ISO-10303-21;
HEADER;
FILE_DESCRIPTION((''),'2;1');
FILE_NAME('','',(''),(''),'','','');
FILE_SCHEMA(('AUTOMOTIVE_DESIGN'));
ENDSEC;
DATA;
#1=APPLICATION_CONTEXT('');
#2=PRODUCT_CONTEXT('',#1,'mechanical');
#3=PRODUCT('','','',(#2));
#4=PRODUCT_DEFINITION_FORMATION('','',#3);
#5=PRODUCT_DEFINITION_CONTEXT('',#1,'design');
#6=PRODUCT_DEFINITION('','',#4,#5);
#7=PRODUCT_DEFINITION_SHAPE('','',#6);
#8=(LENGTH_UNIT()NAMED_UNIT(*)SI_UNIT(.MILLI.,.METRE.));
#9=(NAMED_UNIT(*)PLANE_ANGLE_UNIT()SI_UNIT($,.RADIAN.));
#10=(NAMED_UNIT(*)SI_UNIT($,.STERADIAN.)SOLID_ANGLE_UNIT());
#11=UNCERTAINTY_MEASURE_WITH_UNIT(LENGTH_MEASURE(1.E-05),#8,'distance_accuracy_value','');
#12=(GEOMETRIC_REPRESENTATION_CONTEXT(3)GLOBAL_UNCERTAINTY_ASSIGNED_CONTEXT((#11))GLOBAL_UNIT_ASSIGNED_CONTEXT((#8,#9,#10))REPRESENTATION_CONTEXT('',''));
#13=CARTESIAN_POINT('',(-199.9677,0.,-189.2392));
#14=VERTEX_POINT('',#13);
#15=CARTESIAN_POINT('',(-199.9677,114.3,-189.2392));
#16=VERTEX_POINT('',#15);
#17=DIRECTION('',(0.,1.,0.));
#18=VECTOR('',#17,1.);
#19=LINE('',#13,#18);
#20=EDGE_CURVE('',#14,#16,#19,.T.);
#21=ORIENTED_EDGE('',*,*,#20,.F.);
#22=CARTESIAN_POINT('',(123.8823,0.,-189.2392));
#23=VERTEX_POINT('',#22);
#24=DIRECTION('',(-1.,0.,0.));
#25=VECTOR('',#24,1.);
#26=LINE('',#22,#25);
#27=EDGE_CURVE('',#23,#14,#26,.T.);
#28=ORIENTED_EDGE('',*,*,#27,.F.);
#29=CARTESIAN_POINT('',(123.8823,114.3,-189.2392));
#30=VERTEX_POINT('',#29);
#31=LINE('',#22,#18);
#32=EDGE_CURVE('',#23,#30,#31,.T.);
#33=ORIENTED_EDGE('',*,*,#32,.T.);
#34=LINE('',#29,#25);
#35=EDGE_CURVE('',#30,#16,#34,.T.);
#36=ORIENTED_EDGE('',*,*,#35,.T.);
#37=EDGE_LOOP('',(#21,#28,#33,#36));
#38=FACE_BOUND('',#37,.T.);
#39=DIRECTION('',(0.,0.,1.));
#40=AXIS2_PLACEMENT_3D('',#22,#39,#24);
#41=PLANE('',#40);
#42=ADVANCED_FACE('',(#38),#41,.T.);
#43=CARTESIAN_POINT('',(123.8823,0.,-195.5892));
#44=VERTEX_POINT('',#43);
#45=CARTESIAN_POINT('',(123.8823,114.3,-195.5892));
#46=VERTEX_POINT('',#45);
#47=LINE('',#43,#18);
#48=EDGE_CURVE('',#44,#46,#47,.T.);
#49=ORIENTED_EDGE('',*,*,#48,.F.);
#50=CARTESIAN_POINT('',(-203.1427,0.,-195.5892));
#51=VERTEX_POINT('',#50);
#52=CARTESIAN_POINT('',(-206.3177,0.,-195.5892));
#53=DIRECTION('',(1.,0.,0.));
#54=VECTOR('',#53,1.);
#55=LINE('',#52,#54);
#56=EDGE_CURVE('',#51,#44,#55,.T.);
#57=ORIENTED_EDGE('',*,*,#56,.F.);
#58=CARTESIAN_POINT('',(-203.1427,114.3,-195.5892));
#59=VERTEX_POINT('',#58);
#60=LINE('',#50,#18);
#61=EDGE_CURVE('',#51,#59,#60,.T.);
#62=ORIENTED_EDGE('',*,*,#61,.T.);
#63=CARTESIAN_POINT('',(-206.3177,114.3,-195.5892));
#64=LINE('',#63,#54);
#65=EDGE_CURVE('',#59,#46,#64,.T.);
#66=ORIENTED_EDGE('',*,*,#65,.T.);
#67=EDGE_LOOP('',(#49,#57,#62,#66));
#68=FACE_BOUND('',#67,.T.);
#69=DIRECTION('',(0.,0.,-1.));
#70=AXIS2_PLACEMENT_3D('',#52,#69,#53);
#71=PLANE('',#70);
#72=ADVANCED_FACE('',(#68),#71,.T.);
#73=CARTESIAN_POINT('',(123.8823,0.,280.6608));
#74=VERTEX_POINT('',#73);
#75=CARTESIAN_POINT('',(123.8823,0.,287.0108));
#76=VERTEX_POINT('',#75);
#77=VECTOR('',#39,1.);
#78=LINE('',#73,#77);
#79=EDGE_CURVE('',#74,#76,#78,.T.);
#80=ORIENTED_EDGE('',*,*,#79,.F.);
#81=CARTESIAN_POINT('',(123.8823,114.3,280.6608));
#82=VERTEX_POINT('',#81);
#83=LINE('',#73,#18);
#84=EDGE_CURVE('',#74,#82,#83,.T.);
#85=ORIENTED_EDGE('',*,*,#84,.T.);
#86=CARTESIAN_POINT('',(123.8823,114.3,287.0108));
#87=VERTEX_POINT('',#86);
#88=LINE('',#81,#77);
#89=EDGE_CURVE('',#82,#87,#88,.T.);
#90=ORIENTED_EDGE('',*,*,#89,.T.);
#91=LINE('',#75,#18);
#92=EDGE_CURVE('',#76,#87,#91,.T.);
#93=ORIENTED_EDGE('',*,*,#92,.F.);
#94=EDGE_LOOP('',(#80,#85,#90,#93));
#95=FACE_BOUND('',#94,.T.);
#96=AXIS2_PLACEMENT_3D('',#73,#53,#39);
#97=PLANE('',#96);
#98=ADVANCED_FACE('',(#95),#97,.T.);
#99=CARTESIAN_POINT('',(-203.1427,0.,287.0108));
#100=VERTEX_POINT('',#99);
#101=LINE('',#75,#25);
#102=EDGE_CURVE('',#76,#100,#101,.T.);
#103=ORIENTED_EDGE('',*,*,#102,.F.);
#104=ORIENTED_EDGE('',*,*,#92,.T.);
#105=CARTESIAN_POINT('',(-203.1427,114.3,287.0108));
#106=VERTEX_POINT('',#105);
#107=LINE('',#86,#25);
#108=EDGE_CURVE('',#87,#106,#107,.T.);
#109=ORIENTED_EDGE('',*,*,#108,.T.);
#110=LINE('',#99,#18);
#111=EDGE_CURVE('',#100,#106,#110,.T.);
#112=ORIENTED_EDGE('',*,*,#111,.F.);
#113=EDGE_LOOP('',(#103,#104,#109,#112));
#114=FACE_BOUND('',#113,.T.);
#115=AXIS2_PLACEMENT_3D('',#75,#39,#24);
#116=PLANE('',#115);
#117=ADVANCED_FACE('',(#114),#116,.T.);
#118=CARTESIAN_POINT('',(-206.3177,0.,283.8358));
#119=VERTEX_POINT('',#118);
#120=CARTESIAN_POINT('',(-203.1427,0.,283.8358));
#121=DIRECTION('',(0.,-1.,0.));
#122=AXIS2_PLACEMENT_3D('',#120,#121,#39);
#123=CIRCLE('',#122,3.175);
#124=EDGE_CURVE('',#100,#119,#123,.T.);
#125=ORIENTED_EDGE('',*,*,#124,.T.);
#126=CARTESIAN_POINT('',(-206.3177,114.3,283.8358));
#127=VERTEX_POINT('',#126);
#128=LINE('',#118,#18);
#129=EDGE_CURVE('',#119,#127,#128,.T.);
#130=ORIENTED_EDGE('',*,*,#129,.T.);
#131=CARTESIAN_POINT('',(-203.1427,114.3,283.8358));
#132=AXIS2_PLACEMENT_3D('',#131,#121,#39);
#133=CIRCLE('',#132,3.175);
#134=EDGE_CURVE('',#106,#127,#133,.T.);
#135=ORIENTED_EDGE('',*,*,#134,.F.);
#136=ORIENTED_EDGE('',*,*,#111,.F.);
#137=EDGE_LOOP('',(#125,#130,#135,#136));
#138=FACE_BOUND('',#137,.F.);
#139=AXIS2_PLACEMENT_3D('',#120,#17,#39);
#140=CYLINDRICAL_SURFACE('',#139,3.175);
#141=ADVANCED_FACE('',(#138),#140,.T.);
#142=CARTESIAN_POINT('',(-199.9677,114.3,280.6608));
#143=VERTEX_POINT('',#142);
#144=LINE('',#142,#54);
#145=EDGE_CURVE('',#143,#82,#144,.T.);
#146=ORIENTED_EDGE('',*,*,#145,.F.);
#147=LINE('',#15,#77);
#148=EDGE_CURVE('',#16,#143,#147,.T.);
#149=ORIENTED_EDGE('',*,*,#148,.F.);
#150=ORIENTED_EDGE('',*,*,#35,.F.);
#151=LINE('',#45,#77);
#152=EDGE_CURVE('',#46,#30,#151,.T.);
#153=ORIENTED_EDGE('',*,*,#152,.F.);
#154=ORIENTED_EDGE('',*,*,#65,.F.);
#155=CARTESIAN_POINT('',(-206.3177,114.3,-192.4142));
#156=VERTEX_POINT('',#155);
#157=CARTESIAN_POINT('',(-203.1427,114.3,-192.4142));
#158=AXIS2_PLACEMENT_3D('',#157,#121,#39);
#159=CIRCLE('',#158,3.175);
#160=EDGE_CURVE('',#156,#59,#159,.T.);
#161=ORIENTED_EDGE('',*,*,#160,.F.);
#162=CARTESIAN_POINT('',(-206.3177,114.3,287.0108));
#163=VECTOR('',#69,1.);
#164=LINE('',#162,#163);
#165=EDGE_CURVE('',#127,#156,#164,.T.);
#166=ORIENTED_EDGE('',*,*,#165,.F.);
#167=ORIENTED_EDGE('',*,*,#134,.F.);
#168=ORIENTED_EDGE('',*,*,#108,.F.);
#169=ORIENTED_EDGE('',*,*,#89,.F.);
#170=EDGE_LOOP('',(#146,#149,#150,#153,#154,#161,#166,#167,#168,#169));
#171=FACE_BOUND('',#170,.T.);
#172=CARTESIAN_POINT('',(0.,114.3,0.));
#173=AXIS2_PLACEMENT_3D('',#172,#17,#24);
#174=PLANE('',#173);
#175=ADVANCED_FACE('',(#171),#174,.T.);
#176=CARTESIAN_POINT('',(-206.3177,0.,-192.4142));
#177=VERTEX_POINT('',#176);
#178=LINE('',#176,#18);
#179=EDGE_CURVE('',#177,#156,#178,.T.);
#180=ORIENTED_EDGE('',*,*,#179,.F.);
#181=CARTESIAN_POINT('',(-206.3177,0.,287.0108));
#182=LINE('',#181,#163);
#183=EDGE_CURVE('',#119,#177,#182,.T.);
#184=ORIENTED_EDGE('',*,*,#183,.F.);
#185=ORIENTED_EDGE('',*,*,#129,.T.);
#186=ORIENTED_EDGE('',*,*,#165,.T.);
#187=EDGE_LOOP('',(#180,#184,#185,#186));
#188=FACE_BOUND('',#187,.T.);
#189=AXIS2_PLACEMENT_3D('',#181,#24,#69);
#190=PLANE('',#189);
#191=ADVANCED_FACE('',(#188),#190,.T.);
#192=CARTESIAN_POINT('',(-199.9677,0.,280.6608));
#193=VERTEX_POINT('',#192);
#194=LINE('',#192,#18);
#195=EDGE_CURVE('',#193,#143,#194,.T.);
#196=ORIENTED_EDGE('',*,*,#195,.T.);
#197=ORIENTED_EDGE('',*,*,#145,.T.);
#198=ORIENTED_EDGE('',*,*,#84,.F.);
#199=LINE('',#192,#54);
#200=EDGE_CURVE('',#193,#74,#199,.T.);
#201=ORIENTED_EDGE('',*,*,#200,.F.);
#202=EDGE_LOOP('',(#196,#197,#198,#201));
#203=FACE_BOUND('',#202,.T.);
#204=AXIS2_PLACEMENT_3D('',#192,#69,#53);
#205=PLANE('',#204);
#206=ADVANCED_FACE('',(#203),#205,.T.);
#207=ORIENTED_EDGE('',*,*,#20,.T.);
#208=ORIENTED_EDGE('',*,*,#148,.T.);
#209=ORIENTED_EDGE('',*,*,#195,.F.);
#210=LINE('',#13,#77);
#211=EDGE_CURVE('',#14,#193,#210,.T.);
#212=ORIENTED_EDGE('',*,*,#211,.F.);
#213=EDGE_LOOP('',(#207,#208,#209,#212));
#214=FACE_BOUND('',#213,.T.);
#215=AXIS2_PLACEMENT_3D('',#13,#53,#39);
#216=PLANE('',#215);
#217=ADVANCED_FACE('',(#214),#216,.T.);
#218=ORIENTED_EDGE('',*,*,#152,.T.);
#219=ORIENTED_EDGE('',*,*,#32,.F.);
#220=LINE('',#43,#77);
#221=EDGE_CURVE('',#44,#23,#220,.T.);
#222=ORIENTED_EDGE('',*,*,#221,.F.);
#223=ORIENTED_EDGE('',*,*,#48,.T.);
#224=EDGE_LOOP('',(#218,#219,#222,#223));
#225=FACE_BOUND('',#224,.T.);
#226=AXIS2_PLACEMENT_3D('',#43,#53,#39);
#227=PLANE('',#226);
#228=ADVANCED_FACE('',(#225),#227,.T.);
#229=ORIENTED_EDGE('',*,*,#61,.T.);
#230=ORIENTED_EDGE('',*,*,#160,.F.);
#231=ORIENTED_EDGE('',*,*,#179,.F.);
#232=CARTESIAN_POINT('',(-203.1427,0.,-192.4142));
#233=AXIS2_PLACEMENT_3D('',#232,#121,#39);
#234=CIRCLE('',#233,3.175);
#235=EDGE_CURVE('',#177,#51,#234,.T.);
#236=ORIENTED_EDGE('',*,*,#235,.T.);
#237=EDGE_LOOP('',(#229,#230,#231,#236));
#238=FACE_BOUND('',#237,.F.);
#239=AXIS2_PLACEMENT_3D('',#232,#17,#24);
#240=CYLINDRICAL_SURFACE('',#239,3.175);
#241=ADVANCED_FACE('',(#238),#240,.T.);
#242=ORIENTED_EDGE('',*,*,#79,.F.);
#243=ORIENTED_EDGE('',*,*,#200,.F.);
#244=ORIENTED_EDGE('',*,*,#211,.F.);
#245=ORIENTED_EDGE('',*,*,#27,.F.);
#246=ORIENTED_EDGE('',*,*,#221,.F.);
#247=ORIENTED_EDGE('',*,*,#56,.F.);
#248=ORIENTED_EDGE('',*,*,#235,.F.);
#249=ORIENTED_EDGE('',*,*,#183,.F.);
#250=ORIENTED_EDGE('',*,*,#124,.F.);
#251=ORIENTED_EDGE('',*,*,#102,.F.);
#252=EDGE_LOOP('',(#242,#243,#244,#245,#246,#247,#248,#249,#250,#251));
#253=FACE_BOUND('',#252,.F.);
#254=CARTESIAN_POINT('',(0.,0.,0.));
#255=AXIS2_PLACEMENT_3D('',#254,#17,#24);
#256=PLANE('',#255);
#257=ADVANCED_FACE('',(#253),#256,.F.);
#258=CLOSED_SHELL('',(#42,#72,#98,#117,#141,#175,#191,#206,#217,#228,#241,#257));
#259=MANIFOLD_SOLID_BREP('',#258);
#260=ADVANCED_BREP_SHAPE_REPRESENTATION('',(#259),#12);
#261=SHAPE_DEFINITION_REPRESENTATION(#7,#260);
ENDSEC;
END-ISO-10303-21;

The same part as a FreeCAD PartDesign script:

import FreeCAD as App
import Part
import Sketcher

V = App.Vector
Q = App.Units.Quantity


def edges_at(feature, points):
    """Names of the edges that pass closest to the given points."""
    edges = feature.Shape.Edges
    near = lambda p: min(range(len(edges)), key=lambda i: edges[i].distToShape(Part.Vertex(*p))[0])
    return sorted({f"Edge{near(p) + 1}" for p in points})


def add_polygon(sketch, points):
    """Adds a closed chain of lines whose ends are joined by coincident constraints."""
    first, n = sketch.GeometryCount, len(points)
    for a, b in zip(points, points[1:] + points[:1]):
        sketch.addGeometry(Part.LineSegment(App.Vector(*a, 0), App.Vector(*b, 0)), False)
    for i in range(n):
        sketch.addConstraint(Sketcher.Constraint("Coincident", first + i, 2, first + (i + 1) % n, 1))

doc = App.newDocument("Part")
body = doc.addObject("PartDesign::Body", "Body")

# Sketch on XZ plane
sketch1 = doc.addObject("Sketcher::SketchObject", "Sketch")
body.addObject(sketch1)
sketch1.AttachmentSupport = (doc.XZ_Plane, [""])
sketch1.MapMode = "FlatFace"
add_polygon(sketch1, [(124, 281), (-200, 281), (-200, -189), (124, -189), (124, -196), (-206, -196), (-206, 287), (124, 287)])  # lines 0-7
sketch1.addConstraint([
    Sketcher.Constraint("Horizontal", 0),
    Sketcher.Constraint("Vertical", 1),
    Sketcher.Constraint("Horizontal", 2),
    Sketcher.Constraint("Vertical", 3),
    Sketcher.Constraint("Horizontal", 4),
    Sketcher.Constraint("Vertical", 5),
    Sketcher.Constraint("Horizontal", 6),
    Sketcher.Constraint("Vertical", 7),
    Sketcher.Constraint("Vertical", 3, 2, 6, 2),
    Sketcher.Constraint("Equal", 3, 7),
    Sketcher.Constraint("DistanceX", 4, 2, 4, 1, Q("13 in")),
    Sketcher.Constraint("DistanceY", 5, 1, 5, 2, Q("19 in")),
    Sketcher.Constraint("DistanceY", 3, 2, 3, 1, Q("0.25 in")),
    Sketcher.Constraint("DistanceX", 4, 2, 1, 2, Q("0.25 in")),
    Sketcher.Constraint("DistanceX", 0, 2, -1, 1, Q("199.9677 mm")),
    Sketcher.Constraint("DistanceY", -1, 1, 0, 2, Q("280.6608 mm")),
])
pad1 = doc.addObject("PartDesign::Pad", "Pad")
body.addObject(pad1)
pad1.Profile = sketch1
pad1.Length = Q("4.5 in")
pad1.Reversed = True
doc.recompute()

fillet = doc.addObject("PartDesign::Fillet", "Fillet")
body.addObject(fillet)
fillet.Base = (pad1, edges_at(pad1, [(-206.318, 57.15, 287.011), (-206.318, 57.15, -195.589)]))
fillet.Radius = Q("0.125 in")

doc.recompute()
